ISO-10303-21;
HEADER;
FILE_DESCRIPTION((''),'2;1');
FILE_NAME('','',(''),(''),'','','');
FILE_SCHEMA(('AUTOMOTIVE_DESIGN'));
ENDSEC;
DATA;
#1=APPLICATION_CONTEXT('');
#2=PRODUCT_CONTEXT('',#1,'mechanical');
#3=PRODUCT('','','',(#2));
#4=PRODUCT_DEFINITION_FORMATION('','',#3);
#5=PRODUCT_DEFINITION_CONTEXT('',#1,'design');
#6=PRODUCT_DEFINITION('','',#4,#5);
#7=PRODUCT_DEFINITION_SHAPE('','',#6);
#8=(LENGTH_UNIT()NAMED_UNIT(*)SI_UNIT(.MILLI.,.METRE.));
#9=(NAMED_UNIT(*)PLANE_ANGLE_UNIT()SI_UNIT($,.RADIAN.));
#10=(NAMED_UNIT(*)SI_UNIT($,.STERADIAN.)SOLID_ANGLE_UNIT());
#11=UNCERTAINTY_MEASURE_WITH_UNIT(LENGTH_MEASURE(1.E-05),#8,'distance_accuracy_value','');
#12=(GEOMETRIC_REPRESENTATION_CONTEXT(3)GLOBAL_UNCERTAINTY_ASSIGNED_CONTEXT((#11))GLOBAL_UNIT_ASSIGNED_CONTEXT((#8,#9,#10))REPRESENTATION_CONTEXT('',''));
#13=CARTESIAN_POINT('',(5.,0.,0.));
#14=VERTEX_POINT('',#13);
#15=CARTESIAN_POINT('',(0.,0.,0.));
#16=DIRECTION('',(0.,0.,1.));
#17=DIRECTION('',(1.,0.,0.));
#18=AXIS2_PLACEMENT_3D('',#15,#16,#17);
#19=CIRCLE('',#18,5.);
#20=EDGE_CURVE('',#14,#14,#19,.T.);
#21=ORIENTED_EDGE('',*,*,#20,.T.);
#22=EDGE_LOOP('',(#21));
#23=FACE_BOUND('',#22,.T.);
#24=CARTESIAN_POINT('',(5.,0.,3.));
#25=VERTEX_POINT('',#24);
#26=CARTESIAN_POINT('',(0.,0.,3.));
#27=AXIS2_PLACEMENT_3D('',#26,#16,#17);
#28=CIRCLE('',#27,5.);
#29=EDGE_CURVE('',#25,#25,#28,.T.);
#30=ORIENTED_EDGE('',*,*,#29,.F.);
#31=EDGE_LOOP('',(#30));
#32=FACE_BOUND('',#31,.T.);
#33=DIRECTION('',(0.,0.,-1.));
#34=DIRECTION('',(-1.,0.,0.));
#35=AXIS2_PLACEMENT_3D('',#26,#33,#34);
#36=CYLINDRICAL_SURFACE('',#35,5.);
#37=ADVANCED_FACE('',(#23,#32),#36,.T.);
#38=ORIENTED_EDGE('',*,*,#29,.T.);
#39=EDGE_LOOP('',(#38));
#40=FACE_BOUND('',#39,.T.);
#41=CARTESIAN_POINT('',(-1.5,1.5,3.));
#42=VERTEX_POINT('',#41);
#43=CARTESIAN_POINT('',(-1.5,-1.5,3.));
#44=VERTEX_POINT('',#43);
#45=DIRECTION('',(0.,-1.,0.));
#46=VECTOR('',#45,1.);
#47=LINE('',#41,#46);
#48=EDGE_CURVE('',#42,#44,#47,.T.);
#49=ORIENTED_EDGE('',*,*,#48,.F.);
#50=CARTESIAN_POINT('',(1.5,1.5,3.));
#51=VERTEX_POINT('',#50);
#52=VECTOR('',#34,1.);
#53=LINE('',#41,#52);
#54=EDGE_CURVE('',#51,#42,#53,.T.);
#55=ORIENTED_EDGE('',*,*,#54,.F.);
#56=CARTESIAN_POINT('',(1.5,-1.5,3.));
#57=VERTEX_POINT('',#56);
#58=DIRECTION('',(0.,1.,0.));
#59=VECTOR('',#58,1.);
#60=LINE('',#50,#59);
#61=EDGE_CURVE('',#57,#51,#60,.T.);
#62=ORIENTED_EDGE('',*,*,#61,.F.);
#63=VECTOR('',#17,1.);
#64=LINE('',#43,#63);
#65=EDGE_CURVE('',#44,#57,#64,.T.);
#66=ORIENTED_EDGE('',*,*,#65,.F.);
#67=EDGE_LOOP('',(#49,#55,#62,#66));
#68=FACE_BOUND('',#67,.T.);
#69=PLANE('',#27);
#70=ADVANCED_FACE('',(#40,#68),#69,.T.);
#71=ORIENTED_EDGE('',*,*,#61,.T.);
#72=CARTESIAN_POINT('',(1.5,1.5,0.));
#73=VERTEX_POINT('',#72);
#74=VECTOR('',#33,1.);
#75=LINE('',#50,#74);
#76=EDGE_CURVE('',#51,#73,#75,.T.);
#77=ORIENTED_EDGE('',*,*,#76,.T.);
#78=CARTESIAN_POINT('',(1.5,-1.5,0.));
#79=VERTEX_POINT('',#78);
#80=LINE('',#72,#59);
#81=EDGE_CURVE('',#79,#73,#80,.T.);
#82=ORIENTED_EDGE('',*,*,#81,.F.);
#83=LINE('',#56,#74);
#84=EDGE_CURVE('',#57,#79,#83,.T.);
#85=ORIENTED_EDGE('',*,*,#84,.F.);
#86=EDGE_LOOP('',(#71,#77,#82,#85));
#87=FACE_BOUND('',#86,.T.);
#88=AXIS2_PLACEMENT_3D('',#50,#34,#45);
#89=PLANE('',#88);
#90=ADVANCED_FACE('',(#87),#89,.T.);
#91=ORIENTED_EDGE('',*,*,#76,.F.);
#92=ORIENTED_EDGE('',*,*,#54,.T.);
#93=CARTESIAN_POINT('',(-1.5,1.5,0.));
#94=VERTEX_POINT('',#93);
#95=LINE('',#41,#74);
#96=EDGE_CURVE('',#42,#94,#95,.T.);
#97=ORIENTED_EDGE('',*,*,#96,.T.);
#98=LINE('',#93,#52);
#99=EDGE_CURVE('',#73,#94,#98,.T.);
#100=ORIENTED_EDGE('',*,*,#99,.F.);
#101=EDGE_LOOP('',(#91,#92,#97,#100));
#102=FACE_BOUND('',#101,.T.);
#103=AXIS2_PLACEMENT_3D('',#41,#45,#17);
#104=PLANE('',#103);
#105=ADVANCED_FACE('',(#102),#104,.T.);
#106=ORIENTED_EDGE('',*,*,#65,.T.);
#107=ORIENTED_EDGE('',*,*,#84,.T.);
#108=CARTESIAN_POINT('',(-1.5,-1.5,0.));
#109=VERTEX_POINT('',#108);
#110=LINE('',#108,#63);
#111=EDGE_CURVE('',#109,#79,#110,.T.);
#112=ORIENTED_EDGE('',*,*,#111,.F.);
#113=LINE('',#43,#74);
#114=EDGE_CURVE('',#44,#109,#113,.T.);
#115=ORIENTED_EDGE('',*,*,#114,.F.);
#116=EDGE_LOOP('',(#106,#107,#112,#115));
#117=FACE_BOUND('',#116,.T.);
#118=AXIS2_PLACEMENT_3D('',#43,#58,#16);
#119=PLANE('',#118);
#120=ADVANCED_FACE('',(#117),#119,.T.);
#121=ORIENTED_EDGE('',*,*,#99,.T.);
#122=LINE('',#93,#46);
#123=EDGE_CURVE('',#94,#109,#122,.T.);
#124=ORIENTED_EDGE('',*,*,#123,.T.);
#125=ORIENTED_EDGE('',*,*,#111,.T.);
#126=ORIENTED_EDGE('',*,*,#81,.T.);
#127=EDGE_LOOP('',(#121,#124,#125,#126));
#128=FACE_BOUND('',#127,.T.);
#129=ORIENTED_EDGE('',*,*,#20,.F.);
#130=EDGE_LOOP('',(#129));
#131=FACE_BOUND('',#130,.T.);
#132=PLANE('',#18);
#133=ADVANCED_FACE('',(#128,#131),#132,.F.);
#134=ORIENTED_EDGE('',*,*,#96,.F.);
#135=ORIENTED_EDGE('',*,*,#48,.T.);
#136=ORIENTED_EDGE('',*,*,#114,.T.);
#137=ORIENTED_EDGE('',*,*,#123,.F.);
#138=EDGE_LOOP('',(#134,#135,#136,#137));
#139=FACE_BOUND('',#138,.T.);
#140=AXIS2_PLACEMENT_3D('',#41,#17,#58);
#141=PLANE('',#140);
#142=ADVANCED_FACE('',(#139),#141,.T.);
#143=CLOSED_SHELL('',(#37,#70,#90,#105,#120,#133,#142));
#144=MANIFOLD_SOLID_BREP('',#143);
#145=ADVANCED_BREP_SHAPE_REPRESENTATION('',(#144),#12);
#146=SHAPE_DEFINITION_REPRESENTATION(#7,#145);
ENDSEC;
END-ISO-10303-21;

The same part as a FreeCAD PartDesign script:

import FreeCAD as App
import Part
import Sketcher


def add_polygon(sketch, points):
    """Adds a closed chain of lines whose ends are joined by coincident constraints."""
    first, n = sketch.GeometryCount, len(points)
    for a, b in zip(points, points[1:] + points[:1]):
        sketch.addGeometry(Part.LineSegment(App.Vector(*a, 0), App.Vector(*b, 0)), False)
    for i in range(n):
        sketch.addConstraint(Sketcher.Constraint("Coincident", first + i, 2, first + (i + 1) % n, 1))

doc = App.newDocument("Part")
body = doc.addObject("PartDesign::Body", "Body")

sketch1 = body.newObject("Sketcher::SketchObject", "Sketch")
sketch1.AttachmentSupport = (doc.getObject("XY_Plane"), [""])
sketch1.MapMode = "FlatFace"
sketch1.addGeometry(Part.Circle(App.Vector(0, 0, 0), App.Vector(0, 0, 1), 5), False)
add_polygon(sketch1, [(1.5, -1.5), (-1.5, -1.5), (-1.5, 1.5), (1.5, 1.5)])
sketch1.addConstraint([
    Sketcher.Constraint("Horizontal", 1),
    Sketcher.Constraint("Vertical", 2),
    Sketcher.Constraint("Horizontal", 3),
    Sketcher.Constraint("Vertical", 4),
    Sketcher.Constraint("Coincident", 0, 3, -1, 1),
    Sketcher.Constraint("Symmetric", 1, 2, 3, 2, -1, 1),
    Sketcher.Constraint("Equal", 3, 2),
    Sketcher.Constraint("Diameter", 0, 10.0),
    Sketcher.Constraint("DistanceX", 1, 2, 1, 1, 3.0),
])
pad1 = body.newObject("PartDesign::Pad", "Pad")
pad1.Profile = sketch1
pad1.Length = 3

doc.recompute()
